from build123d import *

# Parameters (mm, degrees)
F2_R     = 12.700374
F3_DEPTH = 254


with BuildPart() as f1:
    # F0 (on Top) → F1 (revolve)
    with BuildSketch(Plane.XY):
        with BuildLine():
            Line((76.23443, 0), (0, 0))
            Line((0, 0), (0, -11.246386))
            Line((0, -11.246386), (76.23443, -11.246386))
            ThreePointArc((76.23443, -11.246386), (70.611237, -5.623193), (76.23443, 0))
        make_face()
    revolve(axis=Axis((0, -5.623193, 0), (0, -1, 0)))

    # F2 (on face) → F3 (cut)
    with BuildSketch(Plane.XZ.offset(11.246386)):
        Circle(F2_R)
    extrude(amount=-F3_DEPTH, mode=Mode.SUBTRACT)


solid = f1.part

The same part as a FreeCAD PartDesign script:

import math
import FreeCAD as App
import Part
import Sketcher

V = App.Vector
Q = App.Units.Quantity

doc = App.newDocument("Part")
body = doc.addObject("PartDesign::Body", "Body")

sketch1 = body.newObject("Sketcher::SketchObject", "Sketch")
sketch1.AttachmentSupport = (doc.getObject("XY_Plane"), [""])
sketch1.MapMode = "FlatFace"
sketch1.addGeometry([
    Part.LineSegment(V(76, 0, 0), V(0, 0, 0)),
    Part.LineSegment(V(0, 0, 0), V(0, -11, 0)),
    Part.LineSegment(V(0, -11, 0), V(76, -11, 0)),
    Part.ArcOfCircle(Part.Circle(V(76, -6, 0), V(0, 0, 1), 6), math.radians(90), math.radians(270)),
], False)
sketch1.addConstraint([
    Sketcher.Constraint("Coincident", 0, 2, 1, 1),
    Sketcher.Constraint("Coincident", 1, 2, 2, 1),
    Sketcher.Constraint("Tangent", 2, 2, 3, 2),
    Sketcher.Constraint("Tangent", 3, 1, 0, 1),
    Sketcher.Constraint("Horizontal", 0),
    Sketcher.Constraint("Vertical", 1),
    Sketcher.Constraint("Horizontal", 2),
    Sketcher.Constraint("Coincident", 0, 2, -1, 1),
    Sketcher.Constraint("Radius", 3, 5.623193),
    Sketcher.Constraint("DistanceX", 0, 2, 0, 1, 76.23443),
])
revolution = body.newObject("PartDesign::Revolution", "Revolution")
revolution.Profile = sketch1
revolution.ReferenceAxis = (sketch1, ["V_Axis"])
revolution.Angle = 360

sketch2 = body.newObject("Sketcher::SketchObject", "Sketch001")
sketch2.AttachmentSupport = (doc.getObject("XZ_Plane"), [""])
sketch2.MapMode = "FlatFace"
sketch2.AttachmentOffset = App.Placement(V(0, 0, 11.246386), App.Rotation())
sketch2.addGeometry(Part.Circle(V(0, 0, 0), V(0, 0, 1), 13), False)
sketch2.addConstraint([
    Sketcher.Constraint("Coincident", 0, 3, -1, 1),
    Sketcher.Constraint("Diameter", 0, 25.400748),
])
pocket1 = body.newObject("PartDesign::Pocket", "Pocket")
pocket1.Profile = sketch2
pocket1.Length = Q("10 in")

doc.recompute()
